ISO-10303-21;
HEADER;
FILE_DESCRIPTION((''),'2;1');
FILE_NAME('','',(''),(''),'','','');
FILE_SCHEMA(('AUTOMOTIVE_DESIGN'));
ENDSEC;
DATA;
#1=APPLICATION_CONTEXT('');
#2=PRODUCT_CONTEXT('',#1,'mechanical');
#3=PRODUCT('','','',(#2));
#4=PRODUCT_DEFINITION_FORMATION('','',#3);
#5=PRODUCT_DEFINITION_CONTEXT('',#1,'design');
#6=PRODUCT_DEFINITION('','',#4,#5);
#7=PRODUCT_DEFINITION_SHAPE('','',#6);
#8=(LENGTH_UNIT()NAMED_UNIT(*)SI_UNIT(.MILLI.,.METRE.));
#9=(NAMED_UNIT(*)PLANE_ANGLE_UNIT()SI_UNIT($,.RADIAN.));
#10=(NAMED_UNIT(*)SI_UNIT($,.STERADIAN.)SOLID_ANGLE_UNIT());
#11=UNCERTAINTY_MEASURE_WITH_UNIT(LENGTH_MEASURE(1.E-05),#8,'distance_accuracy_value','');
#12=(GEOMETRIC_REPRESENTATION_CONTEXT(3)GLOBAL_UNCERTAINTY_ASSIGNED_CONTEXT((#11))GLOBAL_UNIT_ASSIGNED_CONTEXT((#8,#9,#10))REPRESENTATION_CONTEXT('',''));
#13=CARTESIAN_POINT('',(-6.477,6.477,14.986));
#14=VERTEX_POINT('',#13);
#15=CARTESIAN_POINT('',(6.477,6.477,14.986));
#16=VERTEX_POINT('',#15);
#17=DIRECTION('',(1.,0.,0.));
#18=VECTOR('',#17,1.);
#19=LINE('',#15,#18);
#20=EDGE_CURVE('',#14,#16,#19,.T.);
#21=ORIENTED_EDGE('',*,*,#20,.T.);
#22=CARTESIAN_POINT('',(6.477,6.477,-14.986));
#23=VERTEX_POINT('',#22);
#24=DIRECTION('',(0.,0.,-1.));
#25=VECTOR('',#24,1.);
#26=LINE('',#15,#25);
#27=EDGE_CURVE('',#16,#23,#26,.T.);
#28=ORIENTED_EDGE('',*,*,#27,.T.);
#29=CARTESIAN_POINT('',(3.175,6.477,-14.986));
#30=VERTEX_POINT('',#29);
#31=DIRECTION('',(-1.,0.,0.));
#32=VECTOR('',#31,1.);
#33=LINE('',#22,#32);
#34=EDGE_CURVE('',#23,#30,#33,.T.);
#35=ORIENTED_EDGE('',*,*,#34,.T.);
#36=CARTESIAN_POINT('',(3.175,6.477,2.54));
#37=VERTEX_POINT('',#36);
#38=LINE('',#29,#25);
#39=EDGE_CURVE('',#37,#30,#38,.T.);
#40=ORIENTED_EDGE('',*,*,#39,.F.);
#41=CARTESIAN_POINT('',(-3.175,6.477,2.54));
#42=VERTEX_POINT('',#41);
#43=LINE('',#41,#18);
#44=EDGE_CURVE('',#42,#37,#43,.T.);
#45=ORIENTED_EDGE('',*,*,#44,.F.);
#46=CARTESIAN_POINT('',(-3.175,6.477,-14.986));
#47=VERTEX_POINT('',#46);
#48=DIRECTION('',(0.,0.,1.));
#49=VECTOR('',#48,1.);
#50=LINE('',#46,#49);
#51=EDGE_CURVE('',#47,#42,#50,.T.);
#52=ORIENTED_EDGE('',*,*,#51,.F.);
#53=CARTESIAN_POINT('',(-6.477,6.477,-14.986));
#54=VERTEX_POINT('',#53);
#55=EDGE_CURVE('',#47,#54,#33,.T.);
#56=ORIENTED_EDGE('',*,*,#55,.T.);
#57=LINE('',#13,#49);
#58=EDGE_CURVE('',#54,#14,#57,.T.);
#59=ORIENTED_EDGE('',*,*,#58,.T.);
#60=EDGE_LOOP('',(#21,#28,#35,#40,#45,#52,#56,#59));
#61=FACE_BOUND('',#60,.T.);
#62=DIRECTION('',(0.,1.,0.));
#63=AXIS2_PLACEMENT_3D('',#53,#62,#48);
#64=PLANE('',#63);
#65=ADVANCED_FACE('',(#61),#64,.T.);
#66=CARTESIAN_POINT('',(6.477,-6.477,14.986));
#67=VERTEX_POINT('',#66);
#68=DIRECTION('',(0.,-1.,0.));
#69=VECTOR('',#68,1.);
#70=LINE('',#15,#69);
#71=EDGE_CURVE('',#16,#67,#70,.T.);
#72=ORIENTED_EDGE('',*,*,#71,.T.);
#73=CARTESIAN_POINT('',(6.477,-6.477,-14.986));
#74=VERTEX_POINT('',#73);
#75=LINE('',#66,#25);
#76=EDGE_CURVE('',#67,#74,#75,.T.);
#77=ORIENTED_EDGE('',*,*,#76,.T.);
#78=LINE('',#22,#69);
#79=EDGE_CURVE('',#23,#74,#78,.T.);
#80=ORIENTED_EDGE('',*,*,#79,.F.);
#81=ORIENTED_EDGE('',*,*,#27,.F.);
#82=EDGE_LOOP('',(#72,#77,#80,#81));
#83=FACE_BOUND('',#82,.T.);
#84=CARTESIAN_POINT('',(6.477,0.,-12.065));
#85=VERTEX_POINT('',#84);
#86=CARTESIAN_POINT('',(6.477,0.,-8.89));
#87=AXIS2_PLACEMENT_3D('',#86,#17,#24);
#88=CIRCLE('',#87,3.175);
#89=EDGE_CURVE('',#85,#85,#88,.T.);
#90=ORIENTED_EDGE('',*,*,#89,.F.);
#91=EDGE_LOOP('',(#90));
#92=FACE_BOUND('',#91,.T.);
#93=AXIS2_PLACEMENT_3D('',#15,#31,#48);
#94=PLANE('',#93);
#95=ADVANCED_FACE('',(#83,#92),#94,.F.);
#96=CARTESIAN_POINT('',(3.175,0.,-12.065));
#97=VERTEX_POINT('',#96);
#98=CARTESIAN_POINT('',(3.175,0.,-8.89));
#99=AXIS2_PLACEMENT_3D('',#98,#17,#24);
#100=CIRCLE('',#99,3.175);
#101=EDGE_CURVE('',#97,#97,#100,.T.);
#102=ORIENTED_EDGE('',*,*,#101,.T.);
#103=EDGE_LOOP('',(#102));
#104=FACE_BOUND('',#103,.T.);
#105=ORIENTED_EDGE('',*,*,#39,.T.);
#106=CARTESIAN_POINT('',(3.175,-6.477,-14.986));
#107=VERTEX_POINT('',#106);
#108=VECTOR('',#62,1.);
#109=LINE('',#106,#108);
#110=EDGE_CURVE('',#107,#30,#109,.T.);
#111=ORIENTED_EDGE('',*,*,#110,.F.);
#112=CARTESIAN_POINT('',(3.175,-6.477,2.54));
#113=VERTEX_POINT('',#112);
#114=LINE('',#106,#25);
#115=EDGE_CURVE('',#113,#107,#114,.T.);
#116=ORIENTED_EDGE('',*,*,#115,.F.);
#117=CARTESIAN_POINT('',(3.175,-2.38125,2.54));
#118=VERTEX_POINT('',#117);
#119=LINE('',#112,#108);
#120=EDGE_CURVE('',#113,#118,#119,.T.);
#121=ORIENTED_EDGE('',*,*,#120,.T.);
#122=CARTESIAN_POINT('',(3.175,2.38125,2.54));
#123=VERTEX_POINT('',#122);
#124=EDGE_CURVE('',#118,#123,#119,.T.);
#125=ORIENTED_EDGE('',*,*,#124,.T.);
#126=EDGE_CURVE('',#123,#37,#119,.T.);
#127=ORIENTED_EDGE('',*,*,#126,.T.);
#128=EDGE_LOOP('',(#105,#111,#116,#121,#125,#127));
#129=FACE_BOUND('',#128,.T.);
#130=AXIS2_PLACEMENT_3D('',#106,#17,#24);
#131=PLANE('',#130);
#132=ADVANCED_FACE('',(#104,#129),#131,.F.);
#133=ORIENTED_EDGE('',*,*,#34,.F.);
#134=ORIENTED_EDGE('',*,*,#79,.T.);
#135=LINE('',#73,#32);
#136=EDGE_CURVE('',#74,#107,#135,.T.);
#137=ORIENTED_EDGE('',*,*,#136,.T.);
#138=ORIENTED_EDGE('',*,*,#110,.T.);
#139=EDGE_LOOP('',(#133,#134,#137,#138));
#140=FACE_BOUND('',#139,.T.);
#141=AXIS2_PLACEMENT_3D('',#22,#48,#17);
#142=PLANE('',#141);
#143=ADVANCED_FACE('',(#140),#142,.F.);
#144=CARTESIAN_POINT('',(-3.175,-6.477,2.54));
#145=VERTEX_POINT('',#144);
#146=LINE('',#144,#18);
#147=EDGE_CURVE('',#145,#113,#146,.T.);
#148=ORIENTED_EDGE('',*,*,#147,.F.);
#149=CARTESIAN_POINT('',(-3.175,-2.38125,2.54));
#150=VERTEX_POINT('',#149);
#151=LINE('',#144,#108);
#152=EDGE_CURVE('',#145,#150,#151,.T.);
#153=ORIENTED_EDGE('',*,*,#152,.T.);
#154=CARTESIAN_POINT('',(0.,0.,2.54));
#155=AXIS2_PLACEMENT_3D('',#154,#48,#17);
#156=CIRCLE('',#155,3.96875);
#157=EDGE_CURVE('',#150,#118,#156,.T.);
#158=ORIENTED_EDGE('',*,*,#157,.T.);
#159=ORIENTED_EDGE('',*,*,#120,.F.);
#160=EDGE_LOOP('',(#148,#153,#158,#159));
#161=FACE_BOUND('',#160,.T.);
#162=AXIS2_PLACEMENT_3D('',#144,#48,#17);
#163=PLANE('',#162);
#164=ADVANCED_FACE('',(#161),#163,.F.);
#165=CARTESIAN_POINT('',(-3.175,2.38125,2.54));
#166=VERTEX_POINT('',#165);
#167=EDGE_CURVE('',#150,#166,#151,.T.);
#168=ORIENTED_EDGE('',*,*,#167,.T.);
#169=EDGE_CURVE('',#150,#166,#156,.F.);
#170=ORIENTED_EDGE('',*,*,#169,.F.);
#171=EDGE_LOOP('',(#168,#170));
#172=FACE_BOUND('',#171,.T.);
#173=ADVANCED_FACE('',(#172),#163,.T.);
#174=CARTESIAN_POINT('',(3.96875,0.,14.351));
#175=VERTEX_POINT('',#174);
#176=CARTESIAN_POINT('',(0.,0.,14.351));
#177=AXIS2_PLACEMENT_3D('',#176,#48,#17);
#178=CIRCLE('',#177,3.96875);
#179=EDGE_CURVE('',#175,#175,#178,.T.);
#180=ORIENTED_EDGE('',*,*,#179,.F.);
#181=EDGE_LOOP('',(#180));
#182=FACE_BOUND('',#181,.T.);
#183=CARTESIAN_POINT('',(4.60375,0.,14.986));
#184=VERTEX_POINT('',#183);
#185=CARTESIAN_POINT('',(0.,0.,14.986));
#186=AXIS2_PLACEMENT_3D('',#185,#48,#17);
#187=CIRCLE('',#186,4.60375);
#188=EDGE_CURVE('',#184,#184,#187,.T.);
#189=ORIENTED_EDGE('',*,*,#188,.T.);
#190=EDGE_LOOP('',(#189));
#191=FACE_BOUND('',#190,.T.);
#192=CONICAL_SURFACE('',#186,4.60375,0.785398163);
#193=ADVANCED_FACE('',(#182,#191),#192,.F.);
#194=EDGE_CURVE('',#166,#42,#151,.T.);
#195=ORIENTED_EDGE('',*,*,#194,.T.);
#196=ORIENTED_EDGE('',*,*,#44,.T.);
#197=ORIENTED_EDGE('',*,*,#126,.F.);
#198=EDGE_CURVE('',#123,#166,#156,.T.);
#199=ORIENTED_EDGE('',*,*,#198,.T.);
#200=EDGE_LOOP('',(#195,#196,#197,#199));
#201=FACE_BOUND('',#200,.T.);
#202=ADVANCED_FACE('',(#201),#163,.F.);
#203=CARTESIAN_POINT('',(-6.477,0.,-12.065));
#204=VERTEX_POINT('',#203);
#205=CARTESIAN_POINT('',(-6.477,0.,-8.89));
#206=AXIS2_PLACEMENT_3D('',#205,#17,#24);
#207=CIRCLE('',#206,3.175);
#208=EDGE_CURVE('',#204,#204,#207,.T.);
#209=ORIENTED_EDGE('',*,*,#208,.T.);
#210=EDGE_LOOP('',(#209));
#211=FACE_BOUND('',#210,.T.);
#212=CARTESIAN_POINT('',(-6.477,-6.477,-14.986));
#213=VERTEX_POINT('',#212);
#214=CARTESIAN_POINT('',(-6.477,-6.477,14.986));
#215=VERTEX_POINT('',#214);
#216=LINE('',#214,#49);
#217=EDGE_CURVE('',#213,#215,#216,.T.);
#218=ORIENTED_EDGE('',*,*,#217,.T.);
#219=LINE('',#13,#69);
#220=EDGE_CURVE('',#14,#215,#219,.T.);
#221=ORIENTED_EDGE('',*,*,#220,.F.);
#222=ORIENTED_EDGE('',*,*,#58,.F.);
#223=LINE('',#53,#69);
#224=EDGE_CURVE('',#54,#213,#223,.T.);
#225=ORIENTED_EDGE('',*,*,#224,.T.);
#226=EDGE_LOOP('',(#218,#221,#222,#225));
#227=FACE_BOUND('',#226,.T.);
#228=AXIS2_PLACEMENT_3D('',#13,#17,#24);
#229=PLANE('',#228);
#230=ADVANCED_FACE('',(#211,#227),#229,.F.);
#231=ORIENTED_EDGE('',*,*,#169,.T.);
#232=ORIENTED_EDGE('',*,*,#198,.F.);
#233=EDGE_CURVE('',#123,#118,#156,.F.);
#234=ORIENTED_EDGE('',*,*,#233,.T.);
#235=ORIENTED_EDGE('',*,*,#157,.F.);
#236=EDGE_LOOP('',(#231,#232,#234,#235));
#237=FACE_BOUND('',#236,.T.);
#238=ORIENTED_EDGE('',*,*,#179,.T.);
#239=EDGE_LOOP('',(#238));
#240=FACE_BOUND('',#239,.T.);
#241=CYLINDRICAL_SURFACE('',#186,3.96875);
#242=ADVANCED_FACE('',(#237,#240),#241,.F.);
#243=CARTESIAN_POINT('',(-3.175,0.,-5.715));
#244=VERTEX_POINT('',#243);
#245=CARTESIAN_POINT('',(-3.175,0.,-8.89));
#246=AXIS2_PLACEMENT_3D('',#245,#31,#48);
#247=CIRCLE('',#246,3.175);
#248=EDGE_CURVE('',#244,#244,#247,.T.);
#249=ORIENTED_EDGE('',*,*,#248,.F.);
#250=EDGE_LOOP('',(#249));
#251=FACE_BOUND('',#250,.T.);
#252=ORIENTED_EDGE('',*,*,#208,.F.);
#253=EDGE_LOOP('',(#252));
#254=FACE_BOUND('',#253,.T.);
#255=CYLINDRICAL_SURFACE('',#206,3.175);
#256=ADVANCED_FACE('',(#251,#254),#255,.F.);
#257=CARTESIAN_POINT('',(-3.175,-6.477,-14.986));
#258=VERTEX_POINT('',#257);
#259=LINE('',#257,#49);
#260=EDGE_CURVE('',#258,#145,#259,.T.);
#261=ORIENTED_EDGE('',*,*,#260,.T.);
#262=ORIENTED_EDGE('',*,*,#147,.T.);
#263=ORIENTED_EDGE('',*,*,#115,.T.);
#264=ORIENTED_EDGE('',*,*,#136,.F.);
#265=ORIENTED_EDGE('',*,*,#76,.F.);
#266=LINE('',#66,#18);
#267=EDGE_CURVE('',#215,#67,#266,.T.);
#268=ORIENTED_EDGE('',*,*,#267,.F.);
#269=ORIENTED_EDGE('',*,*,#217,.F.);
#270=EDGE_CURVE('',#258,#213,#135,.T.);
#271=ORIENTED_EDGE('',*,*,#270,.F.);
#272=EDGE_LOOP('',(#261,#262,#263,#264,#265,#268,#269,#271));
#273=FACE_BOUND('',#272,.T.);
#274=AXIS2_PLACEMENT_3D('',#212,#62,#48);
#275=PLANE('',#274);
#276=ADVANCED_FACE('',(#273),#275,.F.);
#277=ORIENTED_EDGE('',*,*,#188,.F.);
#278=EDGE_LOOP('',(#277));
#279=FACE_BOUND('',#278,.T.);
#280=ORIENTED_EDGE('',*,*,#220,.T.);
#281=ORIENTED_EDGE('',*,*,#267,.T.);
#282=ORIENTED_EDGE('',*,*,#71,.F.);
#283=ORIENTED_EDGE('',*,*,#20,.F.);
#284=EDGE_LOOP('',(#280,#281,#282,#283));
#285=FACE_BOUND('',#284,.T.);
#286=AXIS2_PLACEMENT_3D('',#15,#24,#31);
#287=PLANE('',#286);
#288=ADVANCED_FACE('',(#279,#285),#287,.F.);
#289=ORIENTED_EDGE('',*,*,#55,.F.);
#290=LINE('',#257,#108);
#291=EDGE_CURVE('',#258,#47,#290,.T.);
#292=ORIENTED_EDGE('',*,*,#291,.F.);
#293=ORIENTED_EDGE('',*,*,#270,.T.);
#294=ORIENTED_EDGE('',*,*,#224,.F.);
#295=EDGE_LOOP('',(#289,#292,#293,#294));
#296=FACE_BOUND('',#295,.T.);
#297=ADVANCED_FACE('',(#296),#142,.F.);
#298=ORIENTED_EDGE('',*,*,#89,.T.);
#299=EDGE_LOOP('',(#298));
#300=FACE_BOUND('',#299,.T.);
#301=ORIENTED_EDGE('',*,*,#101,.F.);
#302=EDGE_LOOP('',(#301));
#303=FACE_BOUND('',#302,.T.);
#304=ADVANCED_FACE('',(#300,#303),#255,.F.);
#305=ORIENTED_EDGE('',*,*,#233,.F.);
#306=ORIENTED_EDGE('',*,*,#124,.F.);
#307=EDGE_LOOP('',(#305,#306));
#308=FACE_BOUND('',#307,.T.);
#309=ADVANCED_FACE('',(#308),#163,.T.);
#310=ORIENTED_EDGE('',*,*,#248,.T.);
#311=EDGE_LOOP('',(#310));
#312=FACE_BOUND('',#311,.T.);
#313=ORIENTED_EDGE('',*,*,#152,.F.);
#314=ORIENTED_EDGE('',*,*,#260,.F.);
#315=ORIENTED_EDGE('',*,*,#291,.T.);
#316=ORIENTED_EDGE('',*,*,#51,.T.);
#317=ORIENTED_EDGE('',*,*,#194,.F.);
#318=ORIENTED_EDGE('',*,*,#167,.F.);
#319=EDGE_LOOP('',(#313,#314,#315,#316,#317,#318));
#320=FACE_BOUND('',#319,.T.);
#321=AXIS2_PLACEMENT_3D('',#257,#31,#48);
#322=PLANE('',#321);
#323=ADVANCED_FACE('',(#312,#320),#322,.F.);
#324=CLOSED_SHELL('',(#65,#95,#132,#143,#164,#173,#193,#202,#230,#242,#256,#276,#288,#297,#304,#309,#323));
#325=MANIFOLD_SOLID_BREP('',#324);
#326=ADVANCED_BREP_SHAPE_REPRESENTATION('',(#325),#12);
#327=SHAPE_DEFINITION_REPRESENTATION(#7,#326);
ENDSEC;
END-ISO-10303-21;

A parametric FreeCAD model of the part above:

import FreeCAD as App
import Part
import Sketcher
from FreeCAD import Vector
Q = App.Units.Quantity


def add_polygon(sketch, points):
    """Adds a closed chain of lines whose ends are joined by coincident constraints."""
    first, n = sketch.GeometryCount, len(points)
    for a, b in zip(points, points[1:] + points[:1]):
        sketch.addGeometry(Part.LineSegment(App.Vector(*a, 0), App.Vector(*b, 0)), False)
    for i in range(n):
        sketch.addConstraint(Sketcher.Constraint("Coincident", first + i, 2, first + (i + 1) % n, 1))

doc = App.newDocument("Part")
body = doc.addObject("PartDesign::Body", "Body")

sketch1 = doc.addObject("Sketcher::SketchObject", "Sketch")
body.addObject(sketch1)
sketch1.AttachmentSupport = (doc.XZ_Plane, [""])
sketch1.MapMode = "FlatFace"
add_polygon(sketch1, [(-6, -15), (-6, 15), (6, 15), (6, -15)])
sketch1.addConstraint(Sketcher.Constraint("Vertical", 0))
sketch1.addConstraint(Sketcher.Constraint("Horizontal", 1))
sketch1.addConstraint(Sketcher.Constraint("Vertical", 2))
sketch1.addConstraint(Sketcher.Constraint("Horizontal", 3))
sketch1.addConstraint(Sketcher.Constraint("Symmetric", 0, 2, 2, 2, -1, 1))
sketch1.addConstraint(Sketcher.Constraint("DistanceX", 1, 1, 1, 2, Q("0.51 in")))
sketch1.addConstraint(Sketcher.Constraint("DistanceY", 0, 1, 0, 2, Q("1.18 in")))
pad1 = doc.addObject("PartDesign::Pad", "Pad")
body.addObject(pad1)
pad1.Profile = sketch1
pad1.Length = Q("0.51 in")
pad1.Midplane = True

sketch2 = doc.addObject("Sketcher::SketchObject", "Sketch001")
body.addObject(sketch2)
sketch2.AttachmentSupport = (doc.XZ_Plane, [""])
sketch2.MapMode = "FlatFace"
sketch2.AttachmentOffset = App.Placement(Vector(0, 0, -0.255 * 25.4), App.Rotation())
add_polygon(sketch2, [(-3, -15), (-3, 3), (3, 3), (3, -15)])
sketch2.addConstraint(Sketcher.Constraint("Vertical", 0))
sketch2.addConstraint(Sketcher.Constraint("Horizontal", 1))
sketch2.addConstraint(Sketcher.Constraint("Vertical", 2))
sketch2.addConstraint(Sketcher.Constraint("Horizontal", 3))
sketch2.addConstraint(Sketcher.Constraint("DistanceX", 1, 1, 1, 2, Q("0.25 in")))
sketch2.addConstraint(Sketcher.Constraint("DistanceY", 0, 1, 0, 2, Q("0.69 in")))
sketch2.addConstraint(Sketcher.Constraint("DistanceY", -1, 1, 0, 2, Q("0.1 in")))
sketch2.addConstraint(Sketcher.Constraint("DistanceX", 0, 2, -1, 1, Q("0.125 in")))
pocket1 = doc.addObject("PartDesign::Pocket", "Pocket")
body.addObject(pocket1)
pocket1.Profile = sketch2
pocket1.Type = "ThroughAll"
pocket1.Reversed = True

sketch3 = doc.addObject("Sketcher::SketchObject", "Sketch002")
body.addObject(sketch3)
sketch3.AttachmentSupport = (doc.YZ_Plane, [""])
sketch3.MapMode = "FlatFace"
sketch3.AttachmentOffset = App.Placement(Vector(0, 0, 0.255 * 25.4), App.Rotation())
sketch3.addGeometry(Part.Circle(Vector(0, -8.9, 0), Vector(0, 0, 1), 3.2), False)
sketch3.addConstraint(Sketcher.Constraint("PointOnObject", 0, 3, -2))
sketch3.addConstraint(Sketcher.Constraint("Diameter", 0, Q("0.25 in")))
sketch3.addConstraint(Sketcher.Constraint("DistanceY", 0, 3, -1, 1, Q("0.35 in")))
pocket2 = doc.addObject("PartDesign::Pocket", "Pocket001")
body.addObject(pocket2)
pocket2.Profile = sketch3
pocket2.Type = "ThroughAll"

sketch4 = doc.addObject("Sketcher::SketchObject", "Sketch003")
body.addObject(sketch4)
sketch4.AttachmentSupport = (doc.XY_Plane, [""])
sketch4.MapMode = "FlatFace"
sketch4.AttachmentOffset = App.Placement(Vector(0, 0, 0.59 * 25.4), App.Rotation())
sketch4.addGeometry(Part.Circle(Vector(0, 0, 0), Vector(0, 0, 1), 4), False)
sketch4.addConstraint(Sketcher.Constraint("Coincident", 0, 3, -1, 1))
sketch4.addConstraint(Sketcher.Constraint("Diameter", 0, Q("0.3125 in")))
doc.recompute()
hole = doc.addObject("PartDesign::Hole", "Hole")
body.addObject(hole)
hole.Profile = sketch4
hole.ThreadType = "None"
hole.Diameter = Q("0.3125 in")
hole.DepthType = "Dimension"
hole.Depth = Q("0.49 in")
hole.DrillPoint = "Flat"
hole.HoleCutType = "Countersink"
hole.HoleCutDiameter = Q("0.3625 in")
hole.HoleCutCountersinkAngle = 90

doc.recompute()
